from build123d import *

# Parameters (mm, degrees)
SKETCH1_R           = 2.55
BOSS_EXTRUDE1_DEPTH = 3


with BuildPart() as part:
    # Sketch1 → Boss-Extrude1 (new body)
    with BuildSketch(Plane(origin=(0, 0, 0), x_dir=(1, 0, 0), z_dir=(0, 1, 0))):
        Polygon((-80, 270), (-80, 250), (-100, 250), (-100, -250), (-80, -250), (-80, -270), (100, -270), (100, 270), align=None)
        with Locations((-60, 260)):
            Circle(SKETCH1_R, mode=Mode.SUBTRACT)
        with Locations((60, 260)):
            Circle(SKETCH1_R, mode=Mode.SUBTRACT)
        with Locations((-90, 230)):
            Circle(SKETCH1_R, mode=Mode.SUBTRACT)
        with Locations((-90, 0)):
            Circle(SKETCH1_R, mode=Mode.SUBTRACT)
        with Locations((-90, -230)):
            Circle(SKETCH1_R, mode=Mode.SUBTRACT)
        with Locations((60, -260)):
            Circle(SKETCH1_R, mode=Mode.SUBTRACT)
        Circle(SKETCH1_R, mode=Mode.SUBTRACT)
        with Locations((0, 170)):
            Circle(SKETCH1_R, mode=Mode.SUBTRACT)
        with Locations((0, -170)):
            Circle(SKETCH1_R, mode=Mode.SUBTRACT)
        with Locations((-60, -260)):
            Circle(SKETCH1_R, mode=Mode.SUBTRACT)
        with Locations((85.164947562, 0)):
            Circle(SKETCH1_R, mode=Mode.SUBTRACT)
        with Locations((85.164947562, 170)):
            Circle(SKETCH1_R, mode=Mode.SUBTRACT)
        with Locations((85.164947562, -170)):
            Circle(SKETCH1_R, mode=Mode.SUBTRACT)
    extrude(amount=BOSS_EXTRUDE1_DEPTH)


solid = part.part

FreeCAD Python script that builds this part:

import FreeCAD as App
import Part
import Sketcher


def add_polygon(sketch, points):
    """Adds a closed chain of lines whose ends are joined by coincident constraints."""
    first, n = sketch.GeometryCount, len(points)
    for a, b in zip(points, points[1:] + points[:1]):
        sketch.addGeometry(Part.LineSegment(App.Vector(*a, 0), App.Vector(*b, 0)), False)
    for i in range(n):
        sketch.addConstraint(Sketcher.Constraint("Coincident", first + i, 2, first + (i + 1) % n, 1))

doc = App.newDocument("Part")
body = doc.addObject("PartDesign::Body", "Body")

# Sketch on XZ plane
sketch1 = body.newObject("Sketcher::SketchObject", "Sketch")
sketch1.AttachmentSupport = (doc.getObject("XZ_Plane"), [""])
sketch1.MapMode = "FlatFace"
add_polygon(sketch1, [(-80, -270), (-80, -250), (-100, -250), (-100, 250), (-80, 250), (-80, 270), (100, 270), (100, -270)])  # lines 0-7
sketch1.addGeometry(Part.Circle(App.Vector(-90, 230, 0), App.Vector(0, 0, 1), 2.55), False)  # 8
sketch1.addGeometry(Part.Circle(App.Vector(-60, 260, 0), App.Vector(0, 0, 1), 2.55), False)  # 9
sketch1.addGeometry(Part.Circle(App.Vector(0, 170, 0), App.Vector(0, 0, 1), 2.55), False)  # 10
sketch1.addGeometry(Part.Circle(App.Vector(60, 260, 0), App.Vector(0, 0, 1), 2.55), False)  # 11
sketch1.addGeometry(Part.Circle(App.Vector(85.164948, 170, 0), App.Vector(0, 0, 1), 2.55), False)  # 12
sketch1.addGeometry(Part.Circle(App.Vector(-90, 0, 0), App.Vector(0, 0, 1), 2.55), False)  # 13
sketch1.addGeometry(Part.Circle(App.Vector(-90, -230, 0), App.Vector(0, 0, 1), 2.55), False)  # 14
sketch1.addGeometry(Part.Circle(App.Vector(-60, -260, 0), App.Vector(0, 0, 1), 2.55), False)  # 15
sketch1.addGeometry(Part.Circle(App.Vector(0, 0, 0), App.Vector(0, 0, 1), 2.55), False)  # 16
sketch1.addGeometry(Part.Circle(App.Vector(85.164948, 0, 0), App.Vector(0, 0, 1), 2.55), False)  # 17
sketch1.addGeometry(Part.Circle(App.Vector(0, -170, 0), App.Vector(0, 0, 1), 2.55), False)  # 18
sketch1.addGeometry(Part.Circle(App.Vector(85.164948, -170, 0), App.Vector(0, 0, 1), 2.55), False)  # 19
sketch1.addGeometry(Part.Circle(App.Vector(60, -260, 0), App.Vector(0, 0, 1), 2.55), False)  # 20
sketch1.addConstraint([
    Sketcher.Constraint("Vertical", 0),
    Sketcher.Constraint("Horizontal", 1),
    Sketcher.Constraint("Vertical", 2),
    Sketcher.Constraint("Horizontal", 3),
    Sketcher.Constraint("Vertical", 4),
    Sketcher.Constraint("Horizontal", 5),
    Sketcher.Constraint("Vertical", 6),
    Sketcher.Constraint("Horizontal", 7),
    Sketcher.Constraint("Coincident", 16, 3, -1, 1),
    Sketcher.Constraint("Equal", 8, 9),
    Sketcher.Constraint("Equal", 9, 10),
    Sketcher.Constraint("Equal", 10, 11),
    Sketcher.Constraint("Equal", 11, 12),
    Sketcher.Constraint("Equal", 12, 13),
    Sketcher.Constraint("Equal", 13, 14),
    Sketcher.Constraint("Equal", 14, 15),
    Sketcher.Constraint("Equal", 15, 16),
    Sketcher.Constraint("Equal", 16, 17),
    Sketcher.Constraint("Equal", 17, 18),
    Sketcher.Constraint("Equal", 18, 19),
    Sketcher.Constraint("Equal", 19, 20),
    Sketcher.Constraint("Symmetric", 11, 3, 15, 3, -1, 1),
    Sketcher.Constraint("Symmetric", 10, 3, 18, 3, -1, 1),
    Sketcher.Constraint("Symmetric", 9, 3, 20, 3, -1, 1),
    Sketcher.Constraint("Symmetric", 9, 3, 11, 3, -2),
    Sketcher.Constraint("Symmetric", 8, 3, 14, 3, -1),
    Sketcher.Constraint("Symmetric", 12, 3, 19, 3, -1),
    Sketcher.Constraint("Symmetric", 0, 2, 3, 2, -1),
    Sketcher.Constraint("PointOnObject", 10, 3, -2),
    Sketcher.Constraint("PointOnObject", 13, 3, -1),
    Sketcher.Constraint("PointOnObject", 17, 3, -1),
    Sketcher.Constraint("Horizontal", 10, 3, 12, 3),
    Sketcher.Constraint("Vertical", 8, 3, 13, 3),
    Sketcher.Constraint("Vertical", 12, 3, 17, 3),
    Sketcher.Constraint("Equal", 3, 0),
    Sketcher.Constraint("Equal", 0, 4),
    Sketcher.Constraint("Diameter", 8, 5.1),
    Sketcher.Constraint("DistanceX", 1, 2, 1, 1, 20.0),
    Sketcher.Constraint("DistanceX", 5, 1, 5, 2, 180.0),
    Sketcher.Constraint("DistanceY", 2, 1, 2, 2, 500.0),
    Sketcher.Constraint("DistanceX", 8, 3, -1, 1, 90.0),
    Sketcher.Constraint("DistanceY", -1, 1, 8, 3, 230.0),
    Sketcher.Constraint("DistanceX", 9, 3, -1, 1, 60.0),
    Sketcher.Constraint("DistanceY", -1, 1, 9, 3, 260.0),
    Sketcher.Constraint("DistanceY", -1, 1, 10, 3, 170.0),
    Sketcher.Constraint("DistanceX", 0, 2, -1, 1, 80.0),
    Sketcher.Constraint("DistanceX", -1, 1, 12, 3, 85.164948),
])
pad1 = body.newObject("PartDesign::Pad", "Pad")
pad1.Profile = sketch1
pad1.Length = 3
pad1.Reversed = True

doc.recompute()
